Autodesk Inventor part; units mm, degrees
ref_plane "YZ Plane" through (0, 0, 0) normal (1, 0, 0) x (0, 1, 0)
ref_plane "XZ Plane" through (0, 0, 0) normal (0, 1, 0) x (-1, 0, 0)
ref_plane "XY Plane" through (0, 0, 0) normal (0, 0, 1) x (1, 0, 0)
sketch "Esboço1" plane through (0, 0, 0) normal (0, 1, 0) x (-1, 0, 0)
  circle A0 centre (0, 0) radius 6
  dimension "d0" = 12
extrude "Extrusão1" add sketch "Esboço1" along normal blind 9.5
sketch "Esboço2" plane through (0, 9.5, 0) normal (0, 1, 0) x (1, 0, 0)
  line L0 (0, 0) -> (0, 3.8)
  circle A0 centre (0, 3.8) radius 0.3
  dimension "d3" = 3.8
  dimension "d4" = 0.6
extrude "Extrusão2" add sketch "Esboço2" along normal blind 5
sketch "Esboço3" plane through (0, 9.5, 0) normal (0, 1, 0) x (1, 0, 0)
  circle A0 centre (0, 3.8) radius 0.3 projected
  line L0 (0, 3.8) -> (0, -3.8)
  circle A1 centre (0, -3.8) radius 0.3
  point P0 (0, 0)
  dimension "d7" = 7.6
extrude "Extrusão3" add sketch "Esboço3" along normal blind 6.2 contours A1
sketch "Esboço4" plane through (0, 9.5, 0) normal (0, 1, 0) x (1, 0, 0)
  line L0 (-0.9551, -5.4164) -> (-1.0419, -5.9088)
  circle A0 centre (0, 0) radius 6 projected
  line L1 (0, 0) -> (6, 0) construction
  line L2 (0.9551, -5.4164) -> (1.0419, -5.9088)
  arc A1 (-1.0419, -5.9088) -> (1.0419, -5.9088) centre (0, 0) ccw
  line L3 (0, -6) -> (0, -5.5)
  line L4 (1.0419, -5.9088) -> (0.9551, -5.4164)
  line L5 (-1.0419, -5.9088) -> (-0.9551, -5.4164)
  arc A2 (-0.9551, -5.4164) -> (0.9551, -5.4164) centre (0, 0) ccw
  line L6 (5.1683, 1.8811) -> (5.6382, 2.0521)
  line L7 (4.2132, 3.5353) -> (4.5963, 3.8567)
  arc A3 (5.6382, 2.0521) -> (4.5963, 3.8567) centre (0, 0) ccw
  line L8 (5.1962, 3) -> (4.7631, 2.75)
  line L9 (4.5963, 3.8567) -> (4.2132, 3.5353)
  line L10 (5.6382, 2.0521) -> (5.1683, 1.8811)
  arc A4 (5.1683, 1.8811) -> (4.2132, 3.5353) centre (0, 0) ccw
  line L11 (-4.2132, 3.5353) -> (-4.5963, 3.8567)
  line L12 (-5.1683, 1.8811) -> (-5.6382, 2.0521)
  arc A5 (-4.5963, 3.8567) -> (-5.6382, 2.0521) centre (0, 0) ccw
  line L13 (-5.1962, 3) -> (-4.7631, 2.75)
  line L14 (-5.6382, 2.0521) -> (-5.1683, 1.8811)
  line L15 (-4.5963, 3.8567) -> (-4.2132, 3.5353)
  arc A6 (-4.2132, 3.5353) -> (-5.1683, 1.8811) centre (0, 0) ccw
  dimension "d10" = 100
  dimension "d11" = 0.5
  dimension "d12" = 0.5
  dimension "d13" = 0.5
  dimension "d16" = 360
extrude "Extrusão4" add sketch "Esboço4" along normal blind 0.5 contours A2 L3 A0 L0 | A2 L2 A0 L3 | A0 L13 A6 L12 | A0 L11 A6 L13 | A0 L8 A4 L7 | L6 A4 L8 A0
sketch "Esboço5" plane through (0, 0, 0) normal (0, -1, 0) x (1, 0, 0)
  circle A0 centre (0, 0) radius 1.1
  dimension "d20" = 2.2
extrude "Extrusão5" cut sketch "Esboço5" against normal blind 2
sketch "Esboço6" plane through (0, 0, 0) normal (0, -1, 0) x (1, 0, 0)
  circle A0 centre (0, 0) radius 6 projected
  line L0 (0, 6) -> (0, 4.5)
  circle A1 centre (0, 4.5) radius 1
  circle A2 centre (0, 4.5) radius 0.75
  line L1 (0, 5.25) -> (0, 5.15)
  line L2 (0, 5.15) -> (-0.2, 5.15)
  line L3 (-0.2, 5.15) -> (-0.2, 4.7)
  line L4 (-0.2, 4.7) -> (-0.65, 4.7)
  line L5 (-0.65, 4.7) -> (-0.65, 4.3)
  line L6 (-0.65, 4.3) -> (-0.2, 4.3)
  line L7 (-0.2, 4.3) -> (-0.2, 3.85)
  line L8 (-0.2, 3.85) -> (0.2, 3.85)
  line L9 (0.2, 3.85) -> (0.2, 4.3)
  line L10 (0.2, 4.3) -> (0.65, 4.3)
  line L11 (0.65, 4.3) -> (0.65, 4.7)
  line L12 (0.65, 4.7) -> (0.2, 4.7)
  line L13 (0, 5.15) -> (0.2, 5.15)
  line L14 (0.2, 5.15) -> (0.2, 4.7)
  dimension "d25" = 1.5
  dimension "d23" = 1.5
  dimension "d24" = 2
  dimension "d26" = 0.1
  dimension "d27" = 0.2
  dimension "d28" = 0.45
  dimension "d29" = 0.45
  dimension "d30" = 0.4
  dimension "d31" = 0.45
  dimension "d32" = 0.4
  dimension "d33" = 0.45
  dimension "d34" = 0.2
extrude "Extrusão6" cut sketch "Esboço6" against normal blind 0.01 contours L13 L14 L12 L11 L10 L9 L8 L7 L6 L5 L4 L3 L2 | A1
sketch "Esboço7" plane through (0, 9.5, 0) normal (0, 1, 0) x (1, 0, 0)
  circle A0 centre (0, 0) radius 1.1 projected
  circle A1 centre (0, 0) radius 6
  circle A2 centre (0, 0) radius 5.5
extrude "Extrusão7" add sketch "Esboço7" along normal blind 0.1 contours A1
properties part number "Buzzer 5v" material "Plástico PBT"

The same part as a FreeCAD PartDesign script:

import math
import FreeCAD as App
import Part
import Sketcher

doc = App.newDocument("Part")
body = doc.addObject("PartDesign::Body", "Body")

# Sketch on XZ plane
sketch1 = body.newObject("Sketcher::SketchObject", "Sketch")
sketch1.AttachmentSupport = (doc.getObject("XZ_Plane"), [""])
sketch1.MapMode = "FlatFace"
sketch1.addGeometry(Part.Circle(App.Vector(0, 0, 0), App.Vector(0, 0, 1), 6), False)
sketch1.addConstraint(Sketcher.Constraint("Coincident", 0, 3, -1, 1))
sketch1.addConstraint(Sketcher.Constraint("Diameter", 0, 12.0))
pad1 = body.newObject("PartDesign::Pad", "Pad")
pad1.Profile = sketch1
pad1.Length = 9.5
pad1.Reversed = True

# Sketch on XZ plane
sketch2 = body.newObject("Sketcher::SketchObject", "Sketch001")
sketch2.AttachmentSupport = (doc.getObject("XZ_Plane"), [""])
sketch2.MapMode = "FlatFace"
sketch2.AttachmentOffset = App.Placement(App.Vector(0, 0, -9.5), App.Rotation())
sketch2.addGeometry(Part.Circle(App.Vector(0, -3.8, 0), App.Vector(0, 0, 1), 0.3), False)
sketch2.addConstraint(Sketcher.Constraint("PointOnObject", 0, 3, -2))
sketch2.addConstraint(Sketcher.Constraint("Diameter", 0, 0.6))
sketch2.addConstraint(Sketcher.Constraint("DistanceY", 0, 3, -1, 1, 3.8))
pad2 = body.newObject("PartDesign::Pad", "Pad001")
pad2.Profile = sketch2
pad2.Length = 5
pad2.Reversed = True

# Sketch on XZ plane
sketch3 = body.newObject("Sketcher::SketchObject", "Sketch002")
sketch3.AttachmentSupport = (doc.getObject("XZ_Plane"), [""])
sketch3.MapMode = "FlatFace"
sketch3.AttachmentOffset = App.Placement(App.Vector(0, 0, -9.5), App.Rotation())
sketch3.addGeometry(Part.Circle(App.Vector(0, 3.8, 0), App.Vector(0, 0, 1), 0.3), False)
sketch3.addConstraint(Sketcher.Constraint("PointOnObject", 0, 3, -2))
sketch3.addConstraint(Sketcher.Constraint("Diameter", 0, 0.6))
sketch3.addConstraint(Sketcher.Constraint("DistanceY", -1, 1, 0, 3, 3.8))
pad3 = body.newObject("PartDesign::Pad", "Pad002")
pad3.Profile = sketch3
pad3.Length = 6.2
pad3.Reversed = True

# Sketch on XZ plane
sketch4 = body.newObject("Sketcher::SketchObject", "Sketch003")
sketch4.AttachmentSupport = (doc.getObject("XZ_Plane"), [""])
sketch4.MapMode = "FlatFace"
sketch4.AttachmentOffset = App.Placement(App.Vector(0, 0, -9.5), App.Rotation())
sketch4.addGeometry(Part.LineSegment(App.Vector(-0.9551, 5.4164, 0), App.Vector(-1.0419, 5.9088, 0)), False)
sketch4.addGeometry(Part.ArcOfCircle(Part.Circle(App.Vector(0, 0, 0), App.Vector(0, 0, 1), 6), math.radians(79.99982), math.radians(100.00018)), False)
sketch4.addGeometry(Part.LineSegment(App.Vector(1.0419, 5.9088, 0), App.Vector(0.9551, 5.4164, 0)), False)
sketch4.addGeometry(Part.ArcOfCircle(Part.Circle(App.Vector(0, 0, 0), App.Vector(0, 0, 1), 5.499964), math.radians(79.999564), math.radians(100.000436)), False)
sketch4.addGeometry(Part.LineSegment(App.Vector(-5.6382, -2.0521, 0), App.Vector(-5.1683, -1.8811, 0)), False)
sketch4.addGeometry(Part.ArcOfCircle(Part.Circle(App.Vector(0.001136, 0.000796, 0), App.Vector(0, 0, 1), 5.501327), math.radians(-159.996333), math.radians(-140.001216)), False)
sketch4.addGeometry(Part.LineSegment(App.Vector(-4.2132, -3.5353, 0), App.Vector(-4.5963, -3.8567, 0)), False)
sketch4.addGeometry(Part.ArcOfCircle(Part.Circle(App.Vector(0, 0, 0), App.Vector(0, 0, 1), 6), math.radians(-160.000332), math.radians(-140.000392)), False)
sketch4.addGeometry(Part.LineSegment(App.Vector(4.5963, -3.8567, 0), App.Vector(4.2132, -3.5353, 0)), False)
sketch4.addGeometry(Part.ArcOfCircle(Part.Circle(App.Vector(0.001257, -0.000586, 0), App.Vector(0, 0, 1), 5.498606), math.radians(-40.003783), math.radians(-19.998669)), False)
sketch4.addGeometry(Part.LineSegment(App.Vector(5.1683, -1.8811, 0), App.Vector(5.6382, -2.0521, 0)), False)
sketch4.addGeometry(Part.ArcOfCircle(Part.Circle(App.Vector(0, 0, 0), App.Vector(0, 0, 1), 6), math.radians(-39.999608), math.radians(-19.999668)), False)
sketch4.addConstraint(Sketcher.Constraint("Coincident", 0, 2, 1, 2))
sketch4.addConstraint(Sketcher.Constraint("Coincident", 1, 1, 2, 1))
sketch4.addConstraint(Sketcher.Constraint("Coincident", 2, 2, 3, 1))
sketch4.addConstraint(Sketcher.Constraint("Coincident", 3, 2, 0, 1))
sketch4.addConstraint(Sketcher.Constraint("Coincident", 4, 2, 5, 1))
sketch4.addConstraint(Sketcher.Constraint("Coincident", 5, 2, 6, 1))
sketch4.addConstraint(Sketcher.Constraint("Coincident", 6, 2, 7, 2))
sketch4.addConstraint(Sketcher.Constraint("Coincident", 7, 1, 4, 1))
sketch4.addConstraint(Sketcher.Constraint("Coincident", 8, 2, 9, 1))
sketch4.addConstraint(Sketcher.Constraint("Coincident", 9, 2, 10, 1))
sketch4.addConstraint(Sketcher.Constraint("Coincident", 10, 2, 11, 2))
sketch4.addConstraint(Sketcher.Constraint("Coincident", 11, 1, 8, 1))
sketch4.addConstraint(Sketcher.Constraint("Coincident", 1, 3, -1, 1))
sketch4.addConstraint(Sketcher.Constraint("Coincident", 3, 3, -1, 1))
sketch4.addConstraint(Sketcher.Constraint("Coincident", 7, 3, -1, 1))
sketch4.addConstraint(Sketcher.Constraint("Coincident", 11, 3, -1, 1))
sketch4.addConstraint(Sketcher.Constraint("Equal", 1, 7))
sketch4.addConstraint(Sketcher.Constraint("Equal", 7, 11))
sketch4.addConstraint(Sketcher.Constraint("Symmetric", 5, 2, 8, 2, -2))
sketch4.addConstraint(Sketcher.Constraint("Symmetric", 4, 2, 9, 2, -2))
sketch4.addConstraint(Sketcher.Constraint("Symmetric", 5, 3, 9, 3, -1))
sketch4.addConstraint(Sketcher.Constraint("Horizontal", 0, 2, 1, 1))
sketch4.addConstraint(Sketcher.Constraint("Horizontal", 2, 2, 3, 2))
sketch4.addConstraint(Sketcher.Constraint("Horizontal", 7, 1, 10, 2))
sketch4.addConstraint(Sketcher.Constraint("Horizontal", 6, 2, 11, 1))
sketch4.addConstraint(Sketcher.Constraint("Equal", 2, 4))
sketch4.addConstraint(Sketcher.Constraint("Radius", 1, 6.0))
sketch4.addConstraint(Sketcher.Constraint("Distance", 0, 0.5))
sketch4.addConstraint(Sketcher.Constraint("Radius", 5, 5.5013))
sketch4.addConstraint(Sketcher.Constraint("DistanceX", 9, 2, 10, 2, 0.47))
sketch4.addConstraint(Sketcher.Constraint("DistanceX", 0, 2, -1, 1, 1.042))
sketch4.addConstraint(Sketcher.Constraint("DistanceX", -1, 1, 2, 2, 0.955))
sketch4.addConstraint(Sketcher.Constraint("DistanceY", 4, 2, -1, 1, 1.881))
sketch4.addConstraint(Sketcher.Constraint("DistanceX", 4, 2, 5, 2, 0.955))
sketch4.addConstraint(Sketcher.Constraint("DistanceX", 6, 2, 5, 2, 0.383))
pad4 = body.newObject("PartDesign::Pad", "Pad003")
pad4.Profile = sketch4
pad4.Length = 0.5
pad4.Reversed = True

# Sketch on XZ plane
sketch5 = body.newObject("Sketcher::SketchObject", "Sketch004")
sketch5.AttachmentSupport = (doc.getObject("XZ_Plane"), [""])
sketch5.MapMode = "FlatFace"
sketch5.addGeometry(Part.Circle(App.Vector(0, 0, 0), App.Vector(0, 0, 1), 1.1), False)
sketch5.addConstraint(Sketcher.Constraint("Coincident", 0, 3, -1, 1))
sketch5.addConstraint(Sketcher.Constraint("Diameter", 0, 2.2))
pocket1 = body.newObject("PartDesign::Pocket", "Pocket")
pocket1.Profile = sketch5
pocket1.Length = 2

# Sketch on XZ plane
sketch6 = body.newObject("Sketcher::SketchObject", "Sketch005")
sketch6.AttachmentSupport = (doc.getObject("XZ_Plane"), [""])
sketch6.MapMode = "FlatFace"
sketch6.addGeometry(Part.LineSegment(App.Vector(0.2, 5.15, 0), App.Vector(-0.2, 5.15, 0)), False)
sketch6.addGeometry(Part.LineSegment(App.Vector(-0.2, 5.15, 0), App.Vector(-0.2, 4.7, 0)), False)
sketch6.addGeometry(Part.LineSegment(App.Vector(-0.2, 4.7, 0), App.Vector(-0.65, 4.7, 0)), False)
sketch6.addGeometry(Part.LineSegment(App.Vector(-0.65, 4.7, 0), App.Vector(-0.65, 4.3, 0)), False)
sketch6.addGeometry(Part.LineSegment(App.Vector(-0.65, 4.3, 0), App.Vector(-0.2, 4.3, 0)), False)
sketch6.addGeometry(Part.LineSegment(App.Vector(-0.2, 4.3, 0), App.Vector(-0.2, 3.85, 0)), False)
sketch6.addGeometry(Part.LineSegment(App.Vector(-0.2, 3.85, 0), App.Vector(0.2, 3.85, 0)), False)
sketch6.addGeometry(Part.LineSegment(App.Vector(0.2, 3.85, 0), App.Vector(0.2, 4.3, 0)), False)
sketch6.addGeometry(Part.LineSegment(App.Vector(0.2, 4.3, 0), App.Vector(0.65, 4.3, 0)), False)
sketch6.addGeometry(Part.LineSegment(App.Vector(0.65, 4.3, 0), App.Vector(0.65, 4.7, 0)), False)
sketch6.addGeometry(Part.LineSegment(App.Vector(0.65, 4.7, 0), App.Vector(0.2, 4.7, 0)), False)
sketch6.addGeometry(Part.LineSegment(App.Vector(0.2, 4.7, 0), App.Vector(0.2, 5.15, 0)), False)
sketch6.addGeometry(Part.Circle(App.Vector(0, 4.5, 0), App.Vector(0, 0, 1), 1), False)
sketch6.addGeometry(Part.Circle(App.Vector(0, 4.5, 0), App.Vector(0, 0, 1), 0.75), False)
sketch6.addConstraint(Sketcher.Constraint("Coincident", 0, 2, 1, 1))
sketch6.addConstraint(Sketcher.Constraint("Coincident", 1, 2, 2, 1))
sketch6.addConstraint(Sketcher.Constraint("Coincident", 2, 2, 3, 1))
sketch6.addConstraint(Sketcher.Constraint("Coincident", 3, 2, 4, 1))
sketch6.addConstraint(Sketcher.Constraint("Coincident", 4, 2, 5, 1))
sketch6.addConstraint(Sketcher.Constraint("Coincident", 5, 2, 6, 1))
sketch6.addConstraint(Sketcher.Constraint("Coincident", 6, 2, 7, 1))
sketch6.addConstraint(Sketcher.Constraint("Coincident", 7, 2, 8, 1))
sketch6.addConstraint(Sketcher.Constraint("Coincident", 8, 2, 9, 1))
sketch6.addConstraint(Sketcher.Constraint("Coincident", 9, 2, 10, 1))
sketch6.addConstraint(Sketcher.Constraint("Coincident", 10, 2, 11, 1))
sketch6.addConstraint(Sketcher.Constraint("Coincident", 11, 2, 0, 1))
sketch6.addConstraint(Sketcher.Constraint("Horizontal", 0))
sketch6.addConstraint(Sketcher.Constraint("Vertical", 1))
sketch6.addConstraint(Sketcher.Constraint("Horizontal", 2))
sketch6.addConstraint(Sketcher.Constraint("Vertical", 3))
sketch6.addConstraint(Sketcher.Constraint("Horizontal", 4))
sketch6.addConstraint(Sketcher.Constraint("Vertical", 5))
sketch6.addConstraint(Sketcher.Constraint("Horizontal", 6))
sketch6.addConstraint(Sketcher.Constraint("Vertical", 7))
sketch6.addConstraint(Sketcher.Constraint("Horizontal", 8))
sketch6.addConstraint(Sketcher.Constraint("Vertical", 9))
sketch6.addConstraint(Sketcher.Constraint("Horizontal", 10))
sketch6.addConstraint(Sketcher.Constraint("Vertical", 11))
sketch6.addConstraint(Sketcher.Constraint("Coincident", 13, 3, 12, 3))
sketch6.addConstraint(Sketcher.Constraint("Symmetric", 4, 2, 7, 2, -2))
sketch6.addConstraint(Sketcher.Constraint("Symmetric", 2, 2, 9, 2, -2))
sketch6.addConstraint(Sketcher.Constraint("PointOnObject", 12, 3, -2))
sketch6.addConstraint(Sketcher.Constraint("Vertical", 1, 2, 4, 2))
sketch6.addConstraint(Sketcher.Constraint("Vertical", 7, 2, 10, 2))
sketch6.addConstraint(Sketcher.Constraint("Equal", 10, 1))
sketch6.addConstraint(Sketcher.Constraint("Equal", 6, 3))
sketch6.addConstraint(Sketcher.Constraint("Equal", 1, 5))
sketch6.addConstraint(Sketcher.Constraint("Diameter", 12, 2.0))
sketch6.addConstraint(Sketcher.Constraint("Diameter", 13, 1.5))
sketch6.addConstraint(Sketcher.Constraint("DistanceX", 0, 2, 0, 1, 0.4))
sketch6.addConstraint(Sketcher.Constraint("DistanceX", 2, 2, 2, 1, 0.45))
sketch6.addConstraint(Sketcher.Constraint("DistanceY", 12, 3, 1, 2, 0.2))
sketch6.addConstraint(Sketcher.Constraint("DistanceY", -1, 1, 12, 3, 4.5))
pocket2 = body.newObject("PartDesign::Pocket", "Pocket001")
pocket2.Profile = sketch6
pocket2.Length = 0.01

# Sketch on XZ plane
sketch7 = body.newObject("Sketcher::SketchObject", "Sketch006")
sketch7.AttachmentSupport = (doc.getObject("XZ_Plane"), [""])
sketch7.MapMode = "FlatFace"
sketch7.AttachmentOffset = App.Placement(App.Vector(0, 0, -9.5), App.Rotation())
sketch7.addGeometry(Part.Circle(App.Vector(0, 0, 0), App.Vector(0, 0, 1), 6), False)
sketch7.addGeometry(Part.Circle(App.Vector(0, 0, 0), App.Vector(0, 0, 1), 6), False)
sketch7.addConstraint(Sketcher.Constraint("Coincident", 0, 3, -1, 1))
sketch7.addConstraint(Sketcher.Constraint("Coincident", 1, 3, -1, 1))
sketch7.addConstraint(Sketcher.Constraint("Diameter", 0, 12.0))
sketch7.addConstraint(Sketcher.Constraint("Diameter", 1, 11.0))
pad5 = body.newObject("PartDesign::Pad", "Pad004")
pad5.Profile = sketch7
pad5.Length = 0.1
pad5.Reversed = True

doc.recompute()
